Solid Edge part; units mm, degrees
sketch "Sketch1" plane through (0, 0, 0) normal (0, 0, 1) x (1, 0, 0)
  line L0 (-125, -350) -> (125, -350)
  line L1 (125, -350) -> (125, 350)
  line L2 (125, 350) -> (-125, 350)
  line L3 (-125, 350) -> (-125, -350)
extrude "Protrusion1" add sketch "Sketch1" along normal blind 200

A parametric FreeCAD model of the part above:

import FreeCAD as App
import Part
import Sketcher

V = App.Vector
Q = App.Units.Quantity


def add_polygon(sketch, points):
    """Adds a closed chain of lines whose ends are joined by coincident constraints."""
    first, n = sketch.GeometryCount, len(points)
    for a, b in zip(points, points[1:] + points[:1]):
        sketch.addGeometry(Part.LineSegment(App.Vector(*a, 0), App.Vector(*b, 0)), False)
    for i in range(n):
        sketch.addConstraint(Sketcher.Constraint("Coincident", first + i, 2, first + (i + 1) % n, 1))

doc = App.newDocument("Part")
body = doc.addObject("PartDesign::Body", "Body")

# Sketch on XY plane
sketch1 = body.newObject("Sketcher::SketchObject", "Sketch")
sketch1.AttachmentSupport = (doc.getObject("XY_Plane"), [""])
sketch1.MapMode = "FlatFace"
add_polygon(sketch1, [(-125, 350), (-125, -350), (125, -350), (125, 350)])  # lines 0-3
sketch1.addConstraint([
    Sketcher.Constraint("Vertical", 0),
    Sketcher.Constraint("Horizontal", 1),
    Sketcher.Constraint("Vertical", 2),
    Sketcher.Constraint("Horizontal", 3),
    Sketcher.Constraint("Symmetric", 0, 2, 2, 2, -1, 1),
    Sketcher.Constraint("DistanceX", 1, 1, 1, 2, Q("250 mm")),
    Sketcher.Constraint("DistanceY", 0, 2, 0, 1, Q("700 mm")),
])
pad1 = body.newObject("PartDesign::Pad", "Pad")
pad1.Profile = sketch1
pad1.Length = 200

doc.recompute()
